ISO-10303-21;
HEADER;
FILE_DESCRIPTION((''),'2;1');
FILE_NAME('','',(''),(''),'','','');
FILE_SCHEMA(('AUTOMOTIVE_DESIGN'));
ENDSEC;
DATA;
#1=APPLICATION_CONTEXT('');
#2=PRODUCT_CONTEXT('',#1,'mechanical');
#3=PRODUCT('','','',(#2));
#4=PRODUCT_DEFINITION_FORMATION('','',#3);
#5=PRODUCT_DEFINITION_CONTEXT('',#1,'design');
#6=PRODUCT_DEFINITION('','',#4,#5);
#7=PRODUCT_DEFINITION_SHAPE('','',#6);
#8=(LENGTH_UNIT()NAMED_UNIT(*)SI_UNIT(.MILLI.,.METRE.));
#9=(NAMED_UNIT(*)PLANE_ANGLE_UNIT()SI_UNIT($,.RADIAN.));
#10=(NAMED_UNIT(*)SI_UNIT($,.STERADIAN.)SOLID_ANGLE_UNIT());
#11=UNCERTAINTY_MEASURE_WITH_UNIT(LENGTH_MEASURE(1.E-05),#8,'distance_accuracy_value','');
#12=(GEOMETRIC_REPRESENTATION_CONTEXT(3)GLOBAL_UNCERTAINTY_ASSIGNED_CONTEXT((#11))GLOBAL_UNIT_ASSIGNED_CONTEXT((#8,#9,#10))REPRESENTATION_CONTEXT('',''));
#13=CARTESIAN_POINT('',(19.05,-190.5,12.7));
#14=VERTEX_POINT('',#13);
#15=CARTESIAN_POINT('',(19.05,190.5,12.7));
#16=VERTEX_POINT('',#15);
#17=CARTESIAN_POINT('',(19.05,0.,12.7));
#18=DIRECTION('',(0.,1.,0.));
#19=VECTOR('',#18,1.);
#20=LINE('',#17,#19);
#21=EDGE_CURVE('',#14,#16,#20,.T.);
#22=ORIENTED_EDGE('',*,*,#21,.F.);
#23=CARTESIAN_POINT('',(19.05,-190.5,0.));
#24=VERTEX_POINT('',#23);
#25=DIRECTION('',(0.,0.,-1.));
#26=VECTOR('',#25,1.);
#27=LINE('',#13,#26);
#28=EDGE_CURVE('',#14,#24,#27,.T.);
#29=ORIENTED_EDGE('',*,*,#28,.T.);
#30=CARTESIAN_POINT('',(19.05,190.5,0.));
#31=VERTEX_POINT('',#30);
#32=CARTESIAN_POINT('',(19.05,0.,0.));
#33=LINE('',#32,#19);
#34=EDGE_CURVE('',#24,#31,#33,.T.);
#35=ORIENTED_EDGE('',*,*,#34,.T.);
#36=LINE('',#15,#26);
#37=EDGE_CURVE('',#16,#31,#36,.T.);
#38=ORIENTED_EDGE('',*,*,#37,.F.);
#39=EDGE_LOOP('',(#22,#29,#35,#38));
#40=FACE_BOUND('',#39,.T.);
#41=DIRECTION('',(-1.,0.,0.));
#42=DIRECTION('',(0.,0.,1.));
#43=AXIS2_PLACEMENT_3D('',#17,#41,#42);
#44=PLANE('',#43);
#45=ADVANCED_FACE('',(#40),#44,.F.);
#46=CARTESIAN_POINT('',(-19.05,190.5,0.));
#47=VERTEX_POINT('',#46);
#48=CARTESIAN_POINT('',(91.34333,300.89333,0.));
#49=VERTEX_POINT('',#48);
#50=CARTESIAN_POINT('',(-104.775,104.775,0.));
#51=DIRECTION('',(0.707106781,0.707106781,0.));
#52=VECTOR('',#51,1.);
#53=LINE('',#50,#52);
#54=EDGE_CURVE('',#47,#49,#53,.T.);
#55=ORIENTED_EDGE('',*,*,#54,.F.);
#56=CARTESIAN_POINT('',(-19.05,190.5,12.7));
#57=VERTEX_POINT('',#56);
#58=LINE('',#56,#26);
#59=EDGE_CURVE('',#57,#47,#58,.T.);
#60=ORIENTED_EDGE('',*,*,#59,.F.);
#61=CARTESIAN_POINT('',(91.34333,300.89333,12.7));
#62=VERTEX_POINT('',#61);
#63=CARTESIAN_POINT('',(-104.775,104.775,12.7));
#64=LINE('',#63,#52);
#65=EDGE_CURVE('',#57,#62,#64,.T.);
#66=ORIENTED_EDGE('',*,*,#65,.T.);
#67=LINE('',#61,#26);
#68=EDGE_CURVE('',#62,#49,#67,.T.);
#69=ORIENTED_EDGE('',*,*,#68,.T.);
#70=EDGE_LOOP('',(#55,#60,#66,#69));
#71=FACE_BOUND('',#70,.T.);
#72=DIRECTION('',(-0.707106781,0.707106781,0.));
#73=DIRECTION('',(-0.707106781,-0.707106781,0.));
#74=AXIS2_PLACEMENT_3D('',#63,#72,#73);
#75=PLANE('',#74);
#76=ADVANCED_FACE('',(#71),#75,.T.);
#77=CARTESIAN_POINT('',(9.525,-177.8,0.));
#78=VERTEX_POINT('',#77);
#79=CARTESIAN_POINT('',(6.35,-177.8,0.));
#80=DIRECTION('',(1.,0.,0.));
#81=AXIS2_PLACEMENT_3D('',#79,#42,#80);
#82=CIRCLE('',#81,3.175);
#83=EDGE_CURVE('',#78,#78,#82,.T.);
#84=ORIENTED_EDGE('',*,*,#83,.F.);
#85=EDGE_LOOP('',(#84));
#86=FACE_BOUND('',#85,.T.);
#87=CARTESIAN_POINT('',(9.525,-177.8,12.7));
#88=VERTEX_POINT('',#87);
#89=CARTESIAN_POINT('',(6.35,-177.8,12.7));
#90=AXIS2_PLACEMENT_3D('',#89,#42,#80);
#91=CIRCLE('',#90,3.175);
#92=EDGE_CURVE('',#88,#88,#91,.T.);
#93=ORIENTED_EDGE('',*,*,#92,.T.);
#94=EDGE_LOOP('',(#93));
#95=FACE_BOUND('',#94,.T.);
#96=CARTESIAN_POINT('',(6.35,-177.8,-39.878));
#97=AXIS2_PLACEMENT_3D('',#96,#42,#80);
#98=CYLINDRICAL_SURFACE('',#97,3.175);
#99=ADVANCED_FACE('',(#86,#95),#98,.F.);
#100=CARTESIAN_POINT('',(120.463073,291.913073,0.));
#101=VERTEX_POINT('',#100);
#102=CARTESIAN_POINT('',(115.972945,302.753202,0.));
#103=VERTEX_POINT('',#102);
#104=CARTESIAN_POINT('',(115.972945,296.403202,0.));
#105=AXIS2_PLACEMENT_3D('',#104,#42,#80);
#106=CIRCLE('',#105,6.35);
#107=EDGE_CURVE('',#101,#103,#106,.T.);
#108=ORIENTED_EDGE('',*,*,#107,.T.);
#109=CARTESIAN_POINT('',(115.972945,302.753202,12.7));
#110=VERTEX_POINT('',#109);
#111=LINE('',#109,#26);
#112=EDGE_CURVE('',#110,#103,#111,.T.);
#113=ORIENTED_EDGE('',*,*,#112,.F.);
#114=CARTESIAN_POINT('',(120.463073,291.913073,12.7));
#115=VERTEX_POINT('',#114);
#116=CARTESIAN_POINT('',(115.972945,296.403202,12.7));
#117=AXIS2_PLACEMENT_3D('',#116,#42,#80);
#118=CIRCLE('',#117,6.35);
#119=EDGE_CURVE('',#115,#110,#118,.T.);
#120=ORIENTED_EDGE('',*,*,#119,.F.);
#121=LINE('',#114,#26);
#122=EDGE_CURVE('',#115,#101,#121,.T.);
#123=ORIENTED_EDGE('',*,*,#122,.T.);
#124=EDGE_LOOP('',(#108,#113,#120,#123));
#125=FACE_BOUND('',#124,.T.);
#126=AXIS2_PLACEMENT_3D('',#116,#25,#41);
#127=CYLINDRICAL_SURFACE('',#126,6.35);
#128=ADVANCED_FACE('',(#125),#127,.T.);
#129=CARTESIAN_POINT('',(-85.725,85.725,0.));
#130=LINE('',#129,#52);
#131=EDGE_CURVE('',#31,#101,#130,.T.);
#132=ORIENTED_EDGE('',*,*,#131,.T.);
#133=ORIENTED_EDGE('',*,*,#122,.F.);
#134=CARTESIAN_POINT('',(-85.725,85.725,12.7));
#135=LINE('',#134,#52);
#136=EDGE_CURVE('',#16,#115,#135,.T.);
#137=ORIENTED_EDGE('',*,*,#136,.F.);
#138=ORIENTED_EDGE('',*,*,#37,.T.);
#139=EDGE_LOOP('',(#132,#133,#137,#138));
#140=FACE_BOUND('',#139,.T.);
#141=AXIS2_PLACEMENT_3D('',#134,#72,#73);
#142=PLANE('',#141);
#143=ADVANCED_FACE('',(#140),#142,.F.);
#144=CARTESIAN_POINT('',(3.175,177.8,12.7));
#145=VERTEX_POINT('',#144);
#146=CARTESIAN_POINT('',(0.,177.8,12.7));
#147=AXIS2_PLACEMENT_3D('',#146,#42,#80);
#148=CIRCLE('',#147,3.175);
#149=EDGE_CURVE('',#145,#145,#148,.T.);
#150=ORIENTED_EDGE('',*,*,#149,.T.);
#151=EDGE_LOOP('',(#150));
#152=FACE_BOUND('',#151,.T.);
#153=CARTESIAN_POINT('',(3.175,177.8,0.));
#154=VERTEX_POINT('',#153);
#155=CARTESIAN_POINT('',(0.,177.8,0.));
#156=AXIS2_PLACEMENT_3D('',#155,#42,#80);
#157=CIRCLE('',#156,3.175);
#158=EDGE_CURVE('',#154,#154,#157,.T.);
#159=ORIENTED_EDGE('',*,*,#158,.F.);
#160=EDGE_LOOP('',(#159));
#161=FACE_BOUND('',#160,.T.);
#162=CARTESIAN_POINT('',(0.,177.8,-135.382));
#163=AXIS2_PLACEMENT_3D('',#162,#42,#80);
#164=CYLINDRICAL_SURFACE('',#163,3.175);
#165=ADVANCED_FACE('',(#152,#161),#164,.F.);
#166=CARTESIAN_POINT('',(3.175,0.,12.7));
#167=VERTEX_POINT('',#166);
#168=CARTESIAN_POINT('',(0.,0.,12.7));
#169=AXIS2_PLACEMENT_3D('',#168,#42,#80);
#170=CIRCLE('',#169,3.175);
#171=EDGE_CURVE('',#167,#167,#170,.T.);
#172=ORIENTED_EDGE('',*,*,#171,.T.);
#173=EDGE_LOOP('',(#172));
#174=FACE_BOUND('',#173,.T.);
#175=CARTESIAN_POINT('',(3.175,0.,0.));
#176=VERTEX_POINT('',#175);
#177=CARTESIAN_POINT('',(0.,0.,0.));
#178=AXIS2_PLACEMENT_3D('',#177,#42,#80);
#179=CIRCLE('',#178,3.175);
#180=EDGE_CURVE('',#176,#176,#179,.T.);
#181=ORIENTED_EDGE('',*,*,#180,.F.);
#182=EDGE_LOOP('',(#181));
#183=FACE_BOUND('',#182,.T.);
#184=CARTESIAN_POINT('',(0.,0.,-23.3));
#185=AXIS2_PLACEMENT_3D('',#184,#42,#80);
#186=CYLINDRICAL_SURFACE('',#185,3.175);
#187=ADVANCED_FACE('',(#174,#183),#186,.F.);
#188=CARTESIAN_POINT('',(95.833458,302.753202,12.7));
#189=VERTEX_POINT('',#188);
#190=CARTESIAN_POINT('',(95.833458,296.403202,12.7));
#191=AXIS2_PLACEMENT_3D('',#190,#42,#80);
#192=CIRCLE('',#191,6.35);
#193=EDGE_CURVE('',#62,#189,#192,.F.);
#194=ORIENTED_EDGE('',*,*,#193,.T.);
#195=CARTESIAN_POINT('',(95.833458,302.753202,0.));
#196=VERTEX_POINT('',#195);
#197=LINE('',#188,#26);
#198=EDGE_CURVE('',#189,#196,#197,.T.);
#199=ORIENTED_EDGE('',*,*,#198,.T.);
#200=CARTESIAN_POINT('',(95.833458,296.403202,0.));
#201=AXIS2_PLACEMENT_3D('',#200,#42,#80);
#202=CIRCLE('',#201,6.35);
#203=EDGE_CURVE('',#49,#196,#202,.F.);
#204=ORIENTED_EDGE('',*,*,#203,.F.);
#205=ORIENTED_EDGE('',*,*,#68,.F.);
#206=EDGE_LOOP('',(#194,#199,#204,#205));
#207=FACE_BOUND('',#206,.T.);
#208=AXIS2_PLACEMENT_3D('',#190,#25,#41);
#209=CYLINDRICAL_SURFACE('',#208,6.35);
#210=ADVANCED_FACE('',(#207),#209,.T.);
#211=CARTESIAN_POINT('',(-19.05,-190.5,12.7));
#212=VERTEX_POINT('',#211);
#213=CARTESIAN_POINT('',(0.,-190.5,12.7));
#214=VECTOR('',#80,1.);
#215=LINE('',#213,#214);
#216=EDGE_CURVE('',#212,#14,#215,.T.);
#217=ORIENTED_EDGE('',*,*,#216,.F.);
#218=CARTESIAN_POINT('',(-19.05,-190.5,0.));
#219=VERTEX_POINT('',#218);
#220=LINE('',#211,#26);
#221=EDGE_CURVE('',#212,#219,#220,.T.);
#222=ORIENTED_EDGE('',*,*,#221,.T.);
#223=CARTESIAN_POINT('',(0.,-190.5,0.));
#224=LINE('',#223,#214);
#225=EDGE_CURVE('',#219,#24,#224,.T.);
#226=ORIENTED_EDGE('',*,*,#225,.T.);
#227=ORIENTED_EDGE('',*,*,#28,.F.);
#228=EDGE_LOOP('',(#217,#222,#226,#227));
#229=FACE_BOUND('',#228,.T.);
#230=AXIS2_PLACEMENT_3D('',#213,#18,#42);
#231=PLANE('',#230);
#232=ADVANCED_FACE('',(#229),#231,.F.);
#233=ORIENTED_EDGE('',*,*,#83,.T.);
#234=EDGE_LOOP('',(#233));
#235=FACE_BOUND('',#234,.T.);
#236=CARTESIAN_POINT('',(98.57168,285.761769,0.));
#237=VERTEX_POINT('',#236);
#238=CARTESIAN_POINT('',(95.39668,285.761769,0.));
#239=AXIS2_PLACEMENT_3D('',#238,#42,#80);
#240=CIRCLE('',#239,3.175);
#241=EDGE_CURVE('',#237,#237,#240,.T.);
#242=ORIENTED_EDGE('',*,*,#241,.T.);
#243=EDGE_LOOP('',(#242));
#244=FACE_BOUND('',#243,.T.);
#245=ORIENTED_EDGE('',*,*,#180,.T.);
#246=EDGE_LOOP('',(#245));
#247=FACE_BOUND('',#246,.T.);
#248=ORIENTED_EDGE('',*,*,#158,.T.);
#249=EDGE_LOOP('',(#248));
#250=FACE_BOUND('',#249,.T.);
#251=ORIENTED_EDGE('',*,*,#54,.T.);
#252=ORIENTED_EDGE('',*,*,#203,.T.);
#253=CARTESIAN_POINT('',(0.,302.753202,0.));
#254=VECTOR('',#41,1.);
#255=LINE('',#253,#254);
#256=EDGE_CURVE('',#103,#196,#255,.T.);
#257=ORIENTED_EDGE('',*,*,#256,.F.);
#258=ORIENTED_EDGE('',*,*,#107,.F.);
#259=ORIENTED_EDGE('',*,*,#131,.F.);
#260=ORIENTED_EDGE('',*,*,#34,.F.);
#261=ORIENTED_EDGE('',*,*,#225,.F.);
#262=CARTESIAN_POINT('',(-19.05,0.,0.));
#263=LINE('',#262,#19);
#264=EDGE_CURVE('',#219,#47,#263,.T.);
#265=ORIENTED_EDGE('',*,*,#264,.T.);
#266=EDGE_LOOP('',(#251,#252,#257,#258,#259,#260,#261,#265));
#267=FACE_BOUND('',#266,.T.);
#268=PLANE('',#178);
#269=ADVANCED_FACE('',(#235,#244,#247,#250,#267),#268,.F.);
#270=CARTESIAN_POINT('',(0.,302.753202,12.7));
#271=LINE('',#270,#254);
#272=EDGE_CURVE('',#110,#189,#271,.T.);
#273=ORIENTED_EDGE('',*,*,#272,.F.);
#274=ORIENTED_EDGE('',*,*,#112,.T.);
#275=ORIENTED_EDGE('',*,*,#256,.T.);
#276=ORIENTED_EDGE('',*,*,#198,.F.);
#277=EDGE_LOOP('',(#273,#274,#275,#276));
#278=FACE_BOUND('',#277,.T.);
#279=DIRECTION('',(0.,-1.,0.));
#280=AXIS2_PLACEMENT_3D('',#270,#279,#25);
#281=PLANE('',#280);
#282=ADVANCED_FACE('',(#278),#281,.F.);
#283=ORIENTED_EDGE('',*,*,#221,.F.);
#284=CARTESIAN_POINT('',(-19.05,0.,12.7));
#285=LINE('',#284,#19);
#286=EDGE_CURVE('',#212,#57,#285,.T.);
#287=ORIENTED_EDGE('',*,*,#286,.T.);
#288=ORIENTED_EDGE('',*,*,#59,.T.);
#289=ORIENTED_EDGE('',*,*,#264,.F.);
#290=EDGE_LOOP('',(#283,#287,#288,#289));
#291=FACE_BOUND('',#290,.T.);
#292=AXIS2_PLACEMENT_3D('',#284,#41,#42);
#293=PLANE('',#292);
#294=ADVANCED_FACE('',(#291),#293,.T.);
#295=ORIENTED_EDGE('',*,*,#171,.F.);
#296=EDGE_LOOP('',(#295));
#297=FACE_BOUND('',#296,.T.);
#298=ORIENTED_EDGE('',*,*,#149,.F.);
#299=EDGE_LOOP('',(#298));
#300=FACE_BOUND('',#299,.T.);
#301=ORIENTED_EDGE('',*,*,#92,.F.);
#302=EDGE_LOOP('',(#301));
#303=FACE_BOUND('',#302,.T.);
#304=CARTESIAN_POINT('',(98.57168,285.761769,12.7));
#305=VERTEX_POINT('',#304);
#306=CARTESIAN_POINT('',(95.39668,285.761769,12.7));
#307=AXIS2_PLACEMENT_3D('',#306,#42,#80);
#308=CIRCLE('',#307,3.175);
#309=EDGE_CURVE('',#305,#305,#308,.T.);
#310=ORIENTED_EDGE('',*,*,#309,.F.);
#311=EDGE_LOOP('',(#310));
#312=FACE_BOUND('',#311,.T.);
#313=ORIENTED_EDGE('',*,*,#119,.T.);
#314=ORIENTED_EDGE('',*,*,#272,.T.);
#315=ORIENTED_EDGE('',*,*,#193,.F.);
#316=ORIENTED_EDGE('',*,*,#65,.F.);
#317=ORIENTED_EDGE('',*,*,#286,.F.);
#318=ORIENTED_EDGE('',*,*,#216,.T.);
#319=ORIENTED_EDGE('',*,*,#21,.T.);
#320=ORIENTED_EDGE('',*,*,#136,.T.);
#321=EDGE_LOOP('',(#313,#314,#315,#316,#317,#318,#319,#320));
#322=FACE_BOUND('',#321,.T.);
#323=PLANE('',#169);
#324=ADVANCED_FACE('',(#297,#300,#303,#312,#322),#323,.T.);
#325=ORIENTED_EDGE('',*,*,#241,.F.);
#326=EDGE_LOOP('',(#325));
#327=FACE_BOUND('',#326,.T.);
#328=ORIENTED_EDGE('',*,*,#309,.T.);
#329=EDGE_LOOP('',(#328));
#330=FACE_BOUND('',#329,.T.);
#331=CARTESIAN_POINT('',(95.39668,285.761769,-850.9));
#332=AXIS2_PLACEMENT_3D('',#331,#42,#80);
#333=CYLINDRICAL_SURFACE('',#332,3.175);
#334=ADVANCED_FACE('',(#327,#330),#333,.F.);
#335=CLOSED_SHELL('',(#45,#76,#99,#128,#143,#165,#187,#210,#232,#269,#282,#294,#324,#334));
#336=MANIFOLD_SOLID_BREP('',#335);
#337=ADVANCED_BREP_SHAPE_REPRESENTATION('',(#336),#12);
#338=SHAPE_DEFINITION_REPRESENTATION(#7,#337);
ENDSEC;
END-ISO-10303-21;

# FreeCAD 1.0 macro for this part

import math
import FreeCAD as App
import Part
import Sketcher
Q = App.Units.Quantity

doc = App.newDocument("Part")
params = doc.addObject("Spreadsheet::Sheet", "Params")
for row, (alias, value) in enumerate([
    ("sketch1_height", "15 in"),
    ("sketch1_radius", "0.25 in"),
    ("sketch1_width", "1.5 in"),
    ("pad1_length", "0.5 in"),
    ("sketch2_diameter", "0.25 in"),
    ("pocket1_length", "34 in"),
    ("sketch3_diameter", "0.25 in"),
    ("pocket2_length", "36 mm"),
    ("sketch4_diameter", "0.25 in"),
    ("pocket3_length", "2.07 in"),
    ("sketch5_diameter", "0.25 in"),
    ("pocket4_length", "5.83 in"),
], start=1):
    params.set(f"A{row}", alias)
    params.set(f"B{row}", "=" + value)
    params.setAlias(f"B{row}", alias)

body = doc.addObject("PartDesign::Body", "Body")

# Sketch on XY plane
sketch1 = body.newObject("Sketcher::SketchObject", "Sketch")
sketch1.AttachmentSupport = (doc.getObject("XY_Plane"), [""])
sketch1.MapMode = "FlatFace"
sketch1.addGeometry([
    Part.LineSegment(App.Vector(-19.05, 190.5, 0), App.Vector(-19.05, -190.5, 0)),  # 0
    Part.LineSegment(App.Vector(-19.05, -190.5, 0), App.Vector(19.05, -190.5, 0)),  # 1
    Part.LineSegment(App.Vector(19.05, -190.5, 0), App.Vector(19.05, 190.5, 0)),  # 2
    Part.LineSegment(App.Vector(19.05, 190.5, 0), App.Vector(120.463073, 291.913073, 0)),  # 3
    Part.ArcOfCircle(Part.Circle(App.Vector(115.972945, 296.403202, 0), App.Vector(0, 0, 1), 6.35), math.radians(-45), math.radians(90)),  # 4
    Part.LineSegment(App.Vector(115.972945, 302.753202, 0), App.Vector(95.833458, 302.753202, 0)),  # 5
    Part.ArcOfCircle(Part.Circle(App.Vector(95.833458, 296.403202, 0), App.Vector(0, 0, 1), 6.35), math.radians(90), math.radians(135)),  # 6
    Part.LineSegment(App.Vector(91.34333, 300.89333, 0), App.Vector(-19.05, 190.5, 0)),  # 7
], False)
sketch1.addConstraint([
    Sketcher.Constraint("Coincident", 0, 2, 1, 1),
    Sketcher.Constraint("Coincident", 1, 2, 2, 1),
    Sketcher.Constraint("Coincident", 2, 2, 3, 1),
    Sketcher.Constraint("Tangent", 3, 2, 4, 1),
    Sketcher.Constraint("Tangent", 4, 2, 5, 1),
    Sketcher.Constraint("Tangent", 5, 2, 6, 1),
    Sketcher.Constraint("Tangent", 6, 2, 7, 1),
    Sketcher.Constraint("Coincident", 7, 2, 0, 1),
    Sketcher.Constraint("Vertical", 0),
    Sketcher.Constraint("Horizontal", 1),
    Sketcher.Constraint("Vertical", 2),
    Sketcher.Constraint("Horizontal", 5),
    Sketcher.Constraint("Equal", 4, 6),
    Sketcher.Constraint("Symmetric", 0, 2, 2, 2, -1, 1),
    Sketcher.Constraint("Parallel", 3, 7),
    Sketcher.Constraint("Horizontal", 2, 2, 7, 2),
    Sketcher.Constraint("DistanceY", 0, 2, 0, 1, Q("15 in")),
    Sketcher.Constraint("Radius", 4, Q("0.25 in")),
    Sketcher.Constraint("DistanceX", 1, 1, 1, 2, Q("1.5 in")),
    Sketcher.Constraint("Angle", 3, Q("45 deg")),
    Sketcher.Constraint("DistanceY", -1, 1, 4, 3, 296.403202),
])
sketch1.setExpression("Constraints[16]", "Params.sketch1_height")
sketch1.setExpression("Constraints[17]", "Params.sketch1_radius")
sketch1.setExpression("Constraints[18]", "Params.sketch1_width")
pad1 = body.newObject("PartDesign::Pad", "Pad")
pad1.Profile = sketch1
pad1.setExpression("Length", "Params.pad1_length")

# Sketch on XY plane
sketch2 = body.newObject("Sketcher::SketchObject", "Sketch001")
sketch2.AttachmentSupport = (doc.getObject("XY_Plane"), [""])
sketch2.MapMode = "FlatFace"
sketch2.AttachmentOffset = App.Placement(App.Vector(0, 0, 0.5 * 25.4), App.Rotation())
sketch2.addGeometry(Part.Circle(App.Vector(95.39668, 285.761769, 0), App.Vector(0, 0, 1), 3.175), False)
sketch2.addConstraint([
    Sketcher.Constraint("Diameter", 0, Q("0.25 in")),
    Sketcher.Constraint("DistanceX", -1, 1, 0, 3, 95.39668),
    Sketcher.Constraint("DistanceY", -1, 1, 0, 3, 285.761769),
])
sketch2.setExpression("Constraints[0]", "Params.sketch2_diameter")
pocket1 = body.newObject("PartDesign::Pocket", "Pocket")
pocket1.Profile = sketch2
pocket1.setExpression("Length", "Params.pocket1_length")

# Sketch on XY plane
sketch3 = body.newObject("Sketcher::SketchObject", "Sketch002")
sketch3.AttachmentSupport = (doc.getObject("XY_Plane"), [""])
sketch3.MapMode = "FlatFace"
sketch3.AttachmentOffset = App.Placement(App.Vector(0, 0, 0.5 * 25.4), App.Rotation())
sketch3.addGeometry(Part.Circle(App.Vector(0, 0, 0), App.Vector(0, 0, 1), 3.175), False)
sketch3.addConstraint([
    Sketcher.Constraint("Coincident", 0, 3, -1, 1),
    Sketcher.Constraint("Diameter", 0, Q("0.25 in")),
])
sketch3.setExpression("Constraints[1]", "Params.sketch3_diameter")
pocket2 = body.newObject("PartDesign::Pocket", "Pocket001")
pocket2.Profile = sketch3
pocket2.setExpression("Length", "Params.pocket2_length")

# Sketch on XY plane
sketch4 = body.newObject("Sketcher::SketchObject", "Sketch003")
sketch4.AttachmentSupport = (doc.getObject("XY_Plane"), [""])
sketch4.MapMode = "FlatFace"
sketch4.AttachmentOffset = App.Placement(App.Vector(0, 0, 0.5 * 25.4), App.Rotation())
sketch4.addGeometry(Part.Circle(App.Vector(6.35, -177.8, 0), App.Vector(0, 0, 1), 3.175), False)
sketch4.addConstraint([
    Sketcher.Constraint("Diameter", 0, Q("0.25 in")),
    Sketcher.Constraint("DistanceY", 0, 3, -1, 1, Q("7 in")),
    Sketcher.Constraint("DistanceX", -1, 1, 0, 3, Q("0.25 in")),
])
sketch4.setExpression("Constraints[0]", "Params.sketch4_diameter")
pocket3 = body.newObject("PartDesign::Pocket", "Pocket002")
pocket3.Profile = sketch4
pocket3.setExpression("Length", "Params.pocket3_length")

# Sketch on XY plane
sketch5 = body.newObject("Sketcher::SketchObject", "Sketch004")
sketch5.AttachmentSupport = (doc.getObject("XY_Plane"), [""])
sketch5.MapMode = "FlatFace"
sketch5.AttachmentOffset = App.Placement(App.Vector(0, 0, 0.5 * 25.4), App.Rotation())
sketch5.addGeometry(Part.Circle(App.Vector(0, 177.8, 0), App.Vector(0, 0, 1), 3.175), False)
sketch5.addConstraint([
    Sketcher.Constraint("PointOnObject", 0, 3, -2),
    Sketcher.Constraint("Diameter", 0, Q("0.25 in")),
    Sketcher.Constraint("DistanceY", -1, 1, 0, 3, Q("7 in")),
])
sketch5.setExpression("Constraints[1]", "Params.sketch5_diameter")
pocket4 = body.newObject("PartDesign::Pocket", "Pocket003")
pocket4.Profile = sketch5
pocket4.setExpression("Length", "Params.pocket4_length")

doc.recompute()
